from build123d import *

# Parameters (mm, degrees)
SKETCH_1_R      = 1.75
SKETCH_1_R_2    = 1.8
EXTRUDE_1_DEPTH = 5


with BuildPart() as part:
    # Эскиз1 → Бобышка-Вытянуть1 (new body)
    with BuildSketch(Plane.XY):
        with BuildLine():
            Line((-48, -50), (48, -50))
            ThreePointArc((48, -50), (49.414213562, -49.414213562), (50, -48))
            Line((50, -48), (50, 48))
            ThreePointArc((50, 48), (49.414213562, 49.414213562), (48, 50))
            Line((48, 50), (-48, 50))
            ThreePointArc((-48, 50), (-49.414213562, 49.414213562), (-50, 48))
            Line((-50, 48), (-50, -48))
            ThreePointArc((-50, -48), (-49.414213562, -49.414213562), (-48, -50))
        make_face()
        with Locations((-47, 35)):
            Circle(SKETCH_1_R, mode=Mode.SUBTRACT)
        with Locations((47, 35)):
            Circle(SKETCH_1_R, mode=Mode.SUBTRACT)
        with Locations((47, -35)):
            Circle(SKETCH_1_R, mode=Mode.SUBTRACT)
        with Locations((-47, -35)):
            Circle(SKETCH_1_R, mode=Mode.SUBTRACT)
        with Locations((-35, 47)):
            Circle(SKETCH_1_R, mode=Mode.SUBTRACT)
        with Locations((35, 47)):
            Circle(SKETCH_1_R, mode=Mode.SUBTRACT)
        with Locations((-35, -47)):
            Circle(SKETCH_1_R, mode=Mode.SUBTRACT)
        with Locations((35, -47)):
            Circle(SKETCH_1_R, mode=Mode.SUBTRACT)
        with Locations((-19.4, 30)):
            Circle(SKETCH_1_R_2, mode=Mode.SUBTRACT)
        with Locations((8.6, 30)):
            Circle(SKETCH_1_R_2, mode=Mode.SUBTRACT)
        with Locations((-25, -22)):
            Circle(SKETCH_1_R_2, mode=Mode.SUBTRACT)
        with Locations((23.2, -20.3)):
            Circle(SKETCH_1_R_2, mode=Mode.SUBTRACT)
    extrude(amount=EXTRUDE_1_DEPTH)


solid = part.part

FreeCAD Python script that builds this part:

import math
import FreeCAD as App
import Part
import Sketcher

doc = App.newDocument("Part")
body = doc.addObject("PartDesign::Body", "Body")

# Sketch on XY plane
sketch1 = doc.addObject("Sketcher::SketchObject", "Sketch")
body.addObject(sketch1)
sketch1.AttachmentSupport = (doc.XY_Plane, [""])
sketch1.MapMode = "FlatFace"
sketch1.addGeometry([
    Part.LineSegment(App.Vector(-48, -50, 0), App.Vector(48, -50, 0)),  # 0
    Part.ArcOfCircle(Part.Circle(App.Vector(48, -48, 0), App.Vector(0, 0, 1), 2), math.radians(-90), math.radians(0)),  # 1
    Part.LineSegment(App.Vector(50, -48, 0), App.Vector(50, 48, 0)),  # 2
    Part.ArcOfCircle(Part.Circle(App.Vector(48, 48, 0), App.Vector(0, 0, 1), 2), math.radians(0), math.radians(90)),  # 3
    Part.LineSegment(App.Vector(48, 50, 0), App.Vector(-48, 50, 0)),  # 4
    Part.ArcOfCircle(Part.Circle(App.Vector(-48, 48, 0), App.Vector(0, 0, 1), 2), math.radians(90), math.radians(180)),  # 5
    Part.LineSegment(App.Vector(-50, 48, 0), App.Vector(-50, -48, 0)),  # 6
    Part.ArcOfCircle(Part.Circle(App.Vector(-48, -48, 0), App.Vector(0, 0, 1), 2), math.radians(-180), math.radians(-90)),  # 7
    Part.Circle(App.Vector(-35, -47, 0), App.Vector(0, 0, 1), 1.8),  # 8
    Part.Circle(App.Vector(-47, -35, 0), App.Vector(0, 0, 1), 1.8),  # 9
    Part.Circle(App.Vector(-25, -22, 0), App.Vector(0, 0, 1), 1.8),  # 10
    Part.Circle(App.Vector(35, -47, 0), App.Vector(0, 0, 1), 1.8),  # 11
    Part.Circle(App.Vector(47, -35, 0), App.Vector(0, 0, 1), 1.8),  # 12
    Part.Circle(App.Vector(23.2, -20.3, 0), App.Vector(0, 0, 1), 1.8),  # 13
    Part.Circle(App.Vector(-47, 35, 0), App.Vector(0, 0, 1), 1.8),  # 14
    Part.Circle(App.Vector(-35, 47, 0), App.Vector(0, 0, 1), 1.8),  # 15
    Part.Circle(App.Vector(-19.4, 30, 0), App.Vector(0, 0, 1), 1.8),  # 16
    Part.Circle(App.Vector(8.6, 30, 0), App.Vector(0, 0, 1), 1.8),  # 17
    Part.Circle(App.Vector(47, 35, 0), App.Vector(0, 0, 1), 1.8),  # 18
    Part.Circle(App.Vector(35, 47, 0), App.Vector(0, 0, 1), 1.8),  # 19
], False)
sketch1.addConstraint([
    Sketcher.Constraint("Tangent", 0, 2, 1, 1),
    Sketcher.Constraint("Tangent", 1, 2, 2, 1),
    Sketcher.Constraint("Tangent", 2, 2, 3, 1),
    Sketcher.Constraint("Tangent", 3, 2, 4, 1),
    Sketcher.Constraint("Tangent", 4, 2, 5, 1),
    Sketcher.Constraint("Tangent", 5, 2, 6, 1),
    Sketcher.Constraint("Tangent", 6, 2, 7, 1),
    Sketcher.Constraint("Tangent", 7, 2, 0, 1),
    Sketcher.Constraint("Horizontal", 0),
    Sketcher.Constraint("Vertical", 2),
    Sketcher.Constraint("Horizontal", 4),
    Sketcher.Constraint("Vertical", 6),
    Sketcher.Constraint("Equal", 1, 3),
    Sketcher.Constraint("Equal", 3, 5),
    Sketcher.Constraint("Equal", 5, 7),
    Sketcher.Constraint("Equal", 8, 9),
    Sketcher.Constraint("Equal", 9, 11),
    Sketcher.Constraint("Equal", 11, 12),
    Sketcher.Constraint("Equal", 10, 13),
    Sketcher.Constraint("Equal", 12, 14),
    Sketcher.Constraint("Equal", 14, 15),
    Sketcher.Constraint("Equal", 13, 16),
    Sketcher.Constraint("Equal", 16, 17),
    Sketcher.Constraint("Equal", 15, 18),
    Sketcher.Constraint("Equal", 18, 19),
    Sketcher.Constraint("Symmetric", 1, 3, 5, 3, -1, 1),
    Sketcher.Constraint("Symmetric", 12, 3, 14, 3, -1, 1),
    Sketcher.Constraint("Symmetric", 11, 3, 15, 3, -1, 1),
    Sketcher.Constraint("Symmetric", 9, 3, 18, 3, -1, 1),
    Sketcher.Constraint("Symmetric", 8, 3, 19, 3, -1, 1),
    Sketcher.Constraint("Symmetric", 8, 3, 11, 3, -2),
    Sketcher.Constraint("Symmetric", 9, 3, 12, 3, -2),
    Sketcher.Constraint("Horizontal", 16, 3, 17, 3),
    Sketcher.Constraint("Equal", 4, 2),
    Sketcher.Constraint("Radius", 1, 2.0),
    Sketcher.Constraint("Diameter", 8, 3.5),
    Sketcher.Constraint("Diameter", 10, 3.6),
    Sketcher.Constraint("DistanceX", 0, 1, 0, 2, 96.0),
    Sketcher.Constraint("DistanceX", 8, 3, -1, 1, 35.0),
    Sketcher.Constraint("DistanceY", 8, 3, -1, 1, 47.0),
    Sketcher.Constraint("DistanceX", 9, 3, -1, 1, 47.0),
    Sketcher.Constraint("DistanceY", 9, 3, -1, 1, 35.0),
    Sketcher.Constraint("DistanceX", 10, 3, -1, 1, 25.0),
    Sketcher.Constraint("DistanceY", 10, 3, -1, 1, 22.0),
    Sketcher.Constraint("DistanceY", -1, 1, 16, 3, 30.0),
    Sketcher.Constraint("DistanceX", 16, 3, 17, 3, 28.0),
    Sketcher.Constraint("DistanceX", -1, 1, 13, 3, 23.2),
    Sketcher.Constraint("DistanceY", 13, 3, -1, 1, 20.3),
    Sketcher.Constraint("DistanceX", 16, 3, -1, 1, 19.4),
])
pad1 = doc.addObject("PartDesign::Pad", "Pad")
body.addObject(pad1)
pad1.Profile = sketch1
pad1.Length = 5

doc.recompute()
